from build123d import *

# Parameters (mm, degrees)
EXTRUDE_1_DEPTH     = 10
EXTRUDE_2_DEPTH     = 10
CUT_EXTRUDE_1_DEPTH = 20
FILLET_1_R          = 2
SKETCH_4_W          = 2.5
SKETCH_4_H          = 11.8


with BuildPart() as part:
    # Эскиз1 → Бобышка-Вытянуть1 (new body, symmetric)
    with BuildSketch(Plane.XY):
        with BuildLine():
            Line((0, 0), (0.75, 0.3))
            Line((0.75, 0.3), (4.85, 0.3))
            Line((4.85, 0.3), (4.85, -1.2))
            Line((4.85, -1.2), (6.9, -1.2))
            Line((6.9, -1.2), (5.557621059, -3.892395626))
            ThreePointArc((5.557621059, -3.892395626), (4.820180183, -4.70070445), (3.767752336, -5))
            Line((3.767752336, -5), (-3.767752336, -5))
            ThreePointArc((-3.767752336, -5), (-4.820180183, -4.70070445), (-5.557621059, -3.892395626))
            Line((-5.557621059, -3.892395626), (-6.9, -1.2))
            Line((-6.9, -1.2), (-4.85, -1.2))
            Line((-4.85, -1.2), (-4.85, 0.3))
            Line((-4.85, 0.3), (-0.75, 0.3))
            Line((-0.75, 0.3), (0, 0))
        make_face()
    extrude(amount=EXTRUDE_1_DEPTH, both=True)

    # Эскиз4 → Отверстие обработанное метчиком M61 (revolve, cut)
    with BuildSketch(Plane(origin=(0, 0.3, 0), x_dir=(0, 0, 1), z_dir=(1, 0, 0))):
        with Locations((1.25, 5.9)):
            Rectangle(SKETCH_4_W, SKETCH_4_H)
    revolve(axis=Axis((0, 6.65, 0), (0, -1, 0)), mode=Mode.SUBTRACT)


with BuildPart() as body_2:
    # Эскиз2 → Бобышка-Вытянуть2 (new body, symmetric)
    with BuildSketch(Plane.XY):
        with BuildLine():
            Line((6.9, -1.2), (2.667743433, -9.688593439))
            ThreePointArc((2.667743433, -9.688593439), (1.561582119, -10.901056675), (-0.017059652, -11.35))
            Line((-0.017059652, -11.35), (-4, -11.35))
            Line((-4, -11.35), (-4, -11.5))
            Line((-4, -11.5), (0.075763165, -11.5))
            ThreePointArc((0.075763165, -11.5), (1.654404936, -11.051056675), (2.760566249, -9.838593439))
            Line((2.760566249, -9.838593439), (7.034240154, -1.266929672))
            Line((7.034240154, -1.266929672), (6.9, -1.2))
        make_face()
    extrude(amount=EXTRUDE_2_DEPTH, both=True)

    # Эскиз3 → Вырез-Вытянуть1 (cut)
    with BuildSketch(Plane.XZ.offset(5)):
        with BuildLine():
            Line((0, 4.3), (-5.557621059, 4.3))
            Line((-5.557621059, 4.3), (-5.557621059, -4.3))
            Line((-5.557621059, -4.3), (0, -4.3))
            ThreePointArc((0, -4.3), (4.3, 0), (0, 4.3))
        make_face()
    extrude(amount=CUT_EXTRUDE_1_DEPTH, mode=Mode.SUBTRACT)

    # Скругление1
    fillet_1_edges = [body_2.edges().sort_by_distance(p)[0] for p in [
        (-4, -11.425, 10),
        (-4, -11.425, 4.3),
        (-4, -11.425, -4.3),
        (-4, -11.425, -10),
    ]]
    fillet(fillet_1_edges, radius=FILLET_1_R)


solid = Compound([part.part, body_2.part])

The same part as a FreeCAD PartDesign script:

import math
import FreeCAD as App
import Part
import Sketcher
Q = App.Units.Quantity


def edges_at(feature, points):
    """Names of the edges that pass closest to the given points."""
    edges = feature.Shape.Edges
    near = lambda p: min(range(len(edges)), key=lambda i: edges[i].distToShape(Part.Vertex(*p))[0])
    return sorted({f"Edge{near(p) + 1}" for p in points})

doc = App.newDocument("Part")
body = doc.addObject("PartDesign::Body", "Body")

# Sketch on XY plane
sketch1 = body.newObject("Sketcher::SketchObject", "Sketch")
sketch1.AttachmentSupport = (doc.getObject("XY_Plane"), [""])
sketch1.MapMode = "FlatFace"
sketch1.addGeometry(Part.LineSegment(App.Vector(0.8, 0.3, 0), App.Vector(0, 0, 0)), False)
sketch1.addGeometry(Part.LineSegment(App.Vector(0, 0, 0), App.Vector(-0.8, 0.3, 0)), False)
sketch1.addGeometry(Part.LineSegment(App.Vector(-0.8, 0.3, 0), App.Vector(-4.8, 0.3, 0)), False)
sketch1.addGeometry(Part.LineSegment(App.Vector(-4.8, 0.3, 0), App.Vector(-4.8, -1.2, 0)), False)
sketch1.addGeometry(Part.LineSegment(App.Vector(-4.8, -1.2, 0), App.Vector(-6.9, -1.2, 0)), False)
sketch1.addGeometry(Part.LineSegment(App.Vector(-6.9, -1.2, 0), App.Vector(-5.6, -3.9, 0)), False)
sketch1.addGeometry(Part.ArcOfCircle(Part.Circle(App.Vector(-3.8, -3, 0), App.Vector(0, 0, 1), 2), math.radians(-154), math.radians(-90)), False)
sketch1.addGeometry(Part.LineSegment(App.Vector(-3.8, -5, 0), App.Vector(3.8, -5, 0)), False)
sketch1.addGeometry(Part.ArcOfCircle(Part.Circle(App.Vector(3.8, -3, 0), App.Vector(0, 0, 1), 2), math.radians(-90), math.radians(-26)), False)
sketch1.addGeometry(Part.LineSegment(App.Vector(5.6, -3.9, 0), App.Vector(6.9, -1.2, 0)), False)
sketch1.addGeometry(Part.LineSegment(App.Vector(6.9, -1.2, 0), App.Vector(4.8, -1.2, 0)), False)
sketch1.addGeometry(Part.LineSegment(App.Vector(4.8, -1.2, 0), App.Vector(4.8, 0.3, 0)), False)
sketch1.addGeometry(Part.LineSegment(App.Vector(4.8, 0.3, 0), App.Vector(0.8, 0.3, 0)), False)
sketch1.addConstraint(Sketcher.Constraint("Coincident", 0, 2, 1, 1))
sketch1.addConstraint(Sketcher.Constraint("Coincident", 1, 2, 2, 1))
sketch1.addConstraint(Sketcher.Constraint("Coincident", 2, 2, 3, 1))
sketch1.addConstraint(Sketcher.Constraint("Coincident", 3, 2, 4, 1))
sketch1.addConstraint(Sketcher.Constraint("Coincident", 4, 2, 5, 1))
sketch1.addConstraint(Sketcher.Constraint("Tangent", 5, 2, 6, 1))
sketch1.addConstraint(Sketcher.Constraint("Tangent", 6, 2, 7, 1))
sketch1.addConstraint(Sketcher.Constraint("Tangent", 7, 2, 8, 1))
sketch1.addConstraint(Sketcher.Constraint("Tangent", 8, 2, 9, 1))
sketch1.addConstraint(Sketcher.Constraint("Coincident", 9, 2, 10, 1))
sketch1.addConstraint(Sketcher.Constraint("Coincident", 10, 2, 11, 1))
sketch1.addConstraint(Sketcher.Constraint("Coincident", 11, 2, 12, 1))
sketch1.addConstraint(Sketcher.Constraint("Coincident", 12, 2, 0, 1))
sketch1.addConstraint(Sketcher.Constraint("Horizontal", 2))
sketch1.addConstraint(Sketcher.Constraint("Vertical", 3))
sketch1.addConstraint(Sketcher.Constraint("Horizontal", 4))
sketch1.addConstraint(Sketcher.Constraint("Horizontal", 7))
sketch1.addConstraint(Sketcher.Constraint("Horizontal", 10))
sketch1.addConstraint(Sketcher.Constraint("Vertical", 11))
sketch1.addConstraint(Sketcher.Constraint("Horizontal", 12))
sketch1.addConstraint(Sketcher.Constraint("Coincident", 0, 2, -1, 1))
sketch1.addConstraint(Sketcher.Constraint("Equal", 6, 8))
sketch1.addConstraint(Sketcher.Constraint("Symmetric", 5, 2, 8, 2, -2))
sketch1.addConstraint(Sketcher.Constraint("Symmetric", 3, 2, 10, 2, -2))
sketch1.addConstraint(Sketcher.Constraint("Symmetric", 1, 2, 12, 2, -2))
sketch1.addConstraint(Sketcher.Constraint("Radius", 6, Q("2 mm")))
sketch1.addConstraint(Sketcher.Constraint("DistanceX", 2, 2, 2, 1, Q("4.1 mm")))
sketch1.addConstraint(Sketcher.Constraint("DistanceY", 3, 2, 3, 1, Q("1.5 mm")))
sketch1.addConstraint(Sketcher.Constraint("DistanceY", 6, 3, -1, 1, Q("3 mm")))
sketch1.addConstraint(Sketcher.Constraint("Angle", 5, Q("-63.5 deg")))
sketch1.addConstraint(Sketcher.Constraint("DistanceX", 4, 2, 4, 1, Q("2.05 mm")))
sketch1.addConstraint(Sketcher.Constraint("DistanceY", -1, 1, 1, 2, Q("0.3 mm")))
sketch1.addConstraint(Sketcher.Constraint("DistanceX", 4, 2, -1, 1, Q("6.9 mm")))
pad1 = body.newObject("PartDesign::Pad", "Pad")
pad1.Profile = sketch1
pad1.Length = 20
pad1.Midplane = True

# Sketch on YZ plane
sketch2 = body.newObject("Sketcher::SketchObject", "Sketch001")
sketch2.AttachmentSupport = (doc.getObject("YZ_Plane"), [""])
sketch2.MapMode = "FlatFace"
sketch2.addGeometry(Part.LineSegment(App.Vector(-11.5, 0, 0), App.Vector(0.3, 0, 0)), False)
sketch2.addGeometry(Part.LineSegment(App.Vector(0.3, 0, 0), App.Vector(0.3, 2.5, 0)), False)
sketch2.addGeometry(Part.LineSegment(App.Vector(0.3, 2.5, 0), App.Vector(-11.5, 2.5, 0)), False)
sketch2.addGeometry(Part.LineSegment(App.Vector(-11.5, 2.5, 0), App.Vector(-11.5, 0, 0)), False)
sketch2.addConstraint(Sketcher.Constraint("Coincident", 0, 2, 1, 1))
sketch2.addConstraint(Sketcher.Constraint("Coincident", 1, 2, 2, 1))
sketch2.addConstraint(Sketcher.Constraint("Coincident", 2, 2, 3, 1))
sketch2.addConstraint(Sketcher.Constraint("Coincident", 3, 2, 0, 1))
sketch2.addConstraint(Sketcher.Constraint("Horizontal", 0))
sketch2.addConstraint(Sketcher.Constraint("Vertical", 1))
sketch2.addConstraint(Sketcher.Constraint("Horizontal", 2))
sketch2.addConstraint(Sketcher.Constraint("Vertical", 3))
sketch2.addConstraint(Sketcher.Constraint("PointOnObject", 0, 2, -1))
sketch2.addConstraint(Sketcher.Constraint("DistanceX", 0, 1, 0, 2, Q("11.8 mm")))
sketch2.addConstraint(Sketcher.Constraint("DistanceY", 1, 1, 1, 2, Q("2.5 mm")))
sketch2.addConstraint(Sketcher.Constraint("DistanceX", -1, 1, 0, 2, Q("0.3 mm")))
groove = body.newObject("PartDesign::Groove", "Groove")
groove.Profile = sketch2
groove.ReferenceAxis = (sketch2, ["H_Axis"])
groove.Angle = 360
body2 = doc.addObject("PartDesign::Body", "Body001")

# Sketch on XY plane
sketch3 = body2.newObject("Sketcher::SketchObject", "Sketch002")
sketch3.AttachmentSupport = (doc.getObject("XY_Plane001"), [""])
sketch3.MapMode = "FlatFace"
sketch3.addGeometry(Part.LineSegment(App.Vector(6.9, -1.2, 0), App.Vector(2.67, -9.69, 0)), False)
sketch3.addGeometry(Part.ArcOfCircle(Part.Circle(App.Vector(-0.02, -8.35, 0), App.Vector(0, 0, 1), 3), math.radians(-90), math.radians(-26)), False)
sketch3.addGeometry(Part.LineSegment(App.Vector(-0.02, -11.35, 0), App.Vector(-4, -11.35, 0)), False)
sketch3.addGeometry(Part.LineSegment(App.Vector(-4, -11.35, 0), App.Vector(-4, -11.5, 0)), False)
sketch3.addGeometry(Part.LineSegment(App.Vector(-4, -11.5, 0), App.Vector(0.08, -11.5, 0)), False)
sketch3.addGeometry(Part.ArcOfCircle(Part.Circle(App.Vector(0.08, -8.5, 0), App.Vector(0, 0, 1), 3), math.radians(-90), math.radians(-26)), False)
sketch3.addGeometry(Part.LineSegment(App.Vector(2.76, -9.84, 0), App.Vector(7.03, -1.27, 0)), False)
sketch3.addGeometry(Part.LineSegment(App.Vector(7.03, -1.27, 0), App.Vector(6.9, -1.2, 0)), False)
sketch3.addConstraint(Sketcher.Constraint("Tangent", 0, 2, 1, 2))
sketch3.addConstraint(Sketcher.Constraint("Tangent", 1, 1, 2, 1))
sketch3.addConstraint(Sketcher.Constraint("Coincident", 2, 2, 3, 1))
sketch3.addConstraint(Sketcher.Constraint("Coincident", 3, 2, 4, 1))
sketch3.addConstraint(Sketcher.Constraint("Tangent", 4, 2, 5, 1))
sketch3.addConstraint(Sketcher.Constraint("Tangent", 5, 2, 6, 1))
sketch3.addConstraint(Sketcher.Constraint("Coincident", 6, 2, 7, 1))
sketch3.addConstraint(Sketcher.Constraint("Coincident", 7, 2, 0, 1))
sketch3.addConstraint(Sketcher.Constraint("Horizontal", 2))
sketch3.addConstraint(Sketcher.Constraint("Vertical", 3))
sketch3.addConstraint(Sketcher.Constraint("Horizontal", 4))
sketch3.addConstraint(Sketcher.Constraint("Equal", 1, 5))
sketch3.addConstraint(Sketcher.Constraint("Parallel", 0, 6))
sketch3.addConstraint(Sketcher.Constraint("Perpendicular", 6, 7))
sketch3.addConstraint(Sketcher.Constraint("Radius", 1, Q("3 mm")))
sketch3.addConstraint(Sketcher.Constraint("DistanceX", 2, 2, -1, 1, Q("4 mm")))
sketch3.addConstraint(Sketcher.Constraint("Angle", 0, Q("-116.5 deg")))
sketch3.addConstraint(Sketcher.Constraint("DistanceY", 3, 2, 3, 1, Q("0.15 mm")))
sketch3.addConstraint(Sketcher.Constraint("DistanceY", 5, 3, -1, 1, Q("8.5 mm")))
sketch3.addConstraint(Sketcher.Constraint("DistanceX", -1, 1, 7, 2, Q("6.9 mm")))
sketch3.addConstraint(Sketcher.Constraint("DistanceY", 7, 2, -1, 1, Q("1.2 mm")))
sketch3.addConstraint(Sketcher.Constraint("Distance", 7, Q("0.15 mm")))
pad2 = body2.newObject("PartDesign::Pad", "Pad001")
pad2.Profile = sketch3
pad2.Length = 20
pad2.Midplane = True

# Sketch on XZ plane
sketch4 = body2.newObject("Sketcher::SketchObject", "Sketch003")
sketch4.AttachmentSupport = (doc.getObject("XZ_Plane001"), [""])
sketch4.MapMode = "FlatFace"
sketch4.AttachmentOffset = App.Placement(App.Vector(0, 0, 5), App.Rotation())
sketch4.addGeometry(Part.LineSegment(App.Vector(0, 4.3, 0), App.Vector(-5.6, 4.3, 0)), False)
sketch4.addGeometry(Part.LineSegment(App.Vector(-5.6, 4.3, 0), App.Vector(-5.6, -4.3, 0)), False)
sketch4.addGeometry(Part.LineSegment(App.Vector(-5.6, -4.3, 0), App.Vector(0, -4.3, 0)), False)
sketch4.addGeometry(Part.ArcOfCircle(Part.Circle(App.Vector(0, 0, 0), App.Vector(0, 0, 1), 4.3), math.radians(-90), math.radians(90)), False)
sketch4.addConstraint(Sketcher.Constraint("Coincident", 0, 2, 1, 1))
sketch4.addConstraint(Sketcher.Constraint("Coincident", 1, 2, 2, 1))
sketch4.addConstraint(Sketcher.Constraint("Tangent", 2, 2, 3, 1))
sketch4.addConstraint(Sketcher.Constraint("Tangent", 3, 2, 0, 1))
sketch4.addConstraint(Sketcher.Constraint("Horizontal", 0))
sketch4.addConstraint(Sketcher.Constraint("Vertical", 1))
sketch4.addConstraint(Sketcher.Constraint("Horizontal", 2))
sketch4.addConstraint(Sketcher.Constraint("Coincident", 3, 3, -1, 1))
sketch4.addConstraint(Sketcher.Constraint("Radius", 3, Q("4.3 mm")))
sketch4.addConstraint(Sketcher.Constraint("DistanceX", 0, 2, 0, 1, Q("5.557621 mm")))
pocket1 = body2.newObject("PartDesign::Pocket", "Pocket")
pocket1.Profile = sketch4
pocket1.Length = 20
pocket1.Reversed = True
doc.recompute()

fillet = body2.newObject("PartDesign::Fillet", "Fillet")
fillet.Base = (pocket1, edges_at(pocket1, [
    (-4, -11.425, 10),
    (-4, -11.425, 4.3),
    (-4, -11.425, -4.3),
    (-4, -11.425, -10),
]))
fillet.Radius = 2

doc.recompute()
